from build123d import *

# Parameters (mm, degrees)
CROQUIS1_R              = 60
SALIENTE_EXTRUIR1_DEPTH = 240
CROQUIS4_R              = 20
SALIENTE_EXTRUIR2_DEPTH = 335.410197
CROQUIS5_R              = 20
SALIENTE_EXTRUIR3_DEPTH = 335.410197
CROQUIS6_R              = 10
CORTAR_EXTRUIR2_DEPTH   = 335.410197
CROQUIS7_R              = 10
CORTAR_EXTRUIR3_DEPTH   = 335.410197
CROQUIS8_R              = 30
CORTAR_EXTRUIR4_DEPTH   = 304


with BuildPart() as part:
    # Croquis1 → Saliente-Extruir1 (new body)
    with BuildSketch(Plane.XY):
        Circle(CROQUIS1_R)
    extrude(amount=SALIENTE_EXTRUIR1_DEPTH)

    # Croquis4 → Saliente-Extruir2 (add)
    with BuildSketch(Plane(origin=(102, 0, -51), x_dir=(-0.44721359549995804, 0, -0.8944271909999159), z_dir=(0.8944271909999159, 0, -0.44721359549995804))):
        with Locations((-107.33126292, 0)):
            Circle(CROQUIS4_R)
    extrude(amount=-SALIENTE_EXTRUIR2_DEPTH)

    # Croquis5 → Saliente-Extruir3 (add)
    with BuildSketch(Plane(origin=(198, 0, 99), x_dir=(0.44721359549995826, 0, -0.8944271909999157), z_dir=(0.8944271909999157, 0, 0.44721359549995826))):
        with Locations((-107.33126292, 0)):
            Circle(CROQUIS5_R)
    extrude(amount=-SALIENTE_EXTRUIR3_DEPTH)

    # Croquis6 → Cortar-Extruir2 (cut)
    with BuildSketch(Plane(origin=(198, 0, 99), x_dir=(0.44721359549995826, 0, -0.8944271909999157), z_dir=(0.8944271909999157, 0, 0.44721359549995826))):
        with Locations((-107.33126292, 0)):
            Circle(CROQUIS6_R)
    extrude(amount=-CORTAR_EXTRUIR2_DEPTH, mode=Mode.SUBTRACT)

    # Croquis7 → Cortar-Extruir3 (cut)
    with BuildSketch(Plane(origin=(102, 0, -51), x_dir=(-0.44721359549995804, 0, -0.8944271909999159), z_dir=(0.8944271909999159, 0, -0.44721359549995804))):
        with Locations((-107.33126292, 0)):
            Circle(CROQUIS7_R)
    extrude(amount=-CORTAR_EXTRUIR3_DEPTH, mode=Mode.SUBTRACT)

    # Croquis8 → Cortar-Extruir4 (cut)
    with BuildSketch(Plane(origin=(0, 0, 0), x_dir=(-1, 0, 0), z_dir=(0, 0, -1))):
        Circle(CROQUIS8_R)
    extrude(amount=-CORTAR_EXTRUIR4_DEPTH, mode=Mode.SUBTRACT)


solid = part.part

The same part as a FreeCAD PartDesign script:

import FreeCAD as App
import Part
import Sketcher
Q = App.Units.Quantity

doc = App.newDocument("Part")
body = doc.addObject("PartDesign::Body", "Body")

# Sketch on XY plane
sketch1 = body.newObject("Sketcher::SketchObject", "Sketch")
sketch1.AttachmentSupport = (doc.getObject("XY_Plane"), [""])
sketch1.MapMode = "FlatFace"
sketch1.addGeometry(Part.Circle(App.Vector(0, 0, 0), App.Vector(0, 0, 1), 60), False)
sketch1.addConstraint(Sketcher.Constraint("Coincident", 0, 3, -1, 1))
sketch1.addConstraint(Sketcher.Constraint("Diameter", 0, Q("120 mm")))
pad1 = body.newObject("PartDesign::Pad", "Pad")
pad1.Profile = sketch1
pad1.Length = 240

# Sketch on an angled plane
sketch2 = body.newObject("Sketcher::SketchObject", "Sketch001")
sketch2.Placement = App.Placement(App.Vector(102, 0, -51), App.Rotation(App.Vector(-0.447213595, 0, -0.894427191), App.Vector(0, 1, 0), App.Vector(0.894427191, 0, -0.447213595), "ZXY"))
sketch2.addGeometry(Part.Circle(App.Vector(-107, 0, 0), App.Vector(0, 0, 1), 20), False)
sketch2.addConstraint(Sketcher.Constraint("PointOnObject", 0, 3, -1))
sketch2.addConstraint(Sketcher.Constraint("Diameter", 0, Q("40 mm")))
sketch2.addConstraint(Sketcher.Constraint("DistanceX", 0, 3, -1, 1, Q("107.331263 mm")))
pad2 = body.newObject("PartDesign::Pad", "Pad001")
pad2.Profile = sketch2
pad2.Length = 335.410197
pad2.Reversed = True

# Sketch on an angled plane
sketch3 = body.newObject("Sketcher::SketchObject", "Sketch002")
sketch3.Placement = App.Placement(App.Vector(198, 0, 99), App.Rotation(App.Vector(0.447213595, 0, -0.894427191), App.Vector(0, 1, 0), App.Vector(0.894427191, 0, 0.447213595), "ZXY"))
sketch3.addGeometry(Part.Circle(App.Vector(-107, 0, 0), App.Vector(0, 0, 1), 20), False)
sketch3.addConstraint(Sketcher.Constraint("PointOnObject", 0, 3, -1))
sketch3.addConstraint(Sketcher.Constraint("Diameter", 0, Q("40 mm")))
sketch3.addConstraint(Sketcher.Constraint("DistanceX", 0, 3, -1, 1, Q("107.331263 mm")))
pad3 = body.newObject("PartDesign::Pad", "Pad002")
pad3.Profile = sketch3
pad3.Length = 335.410197
pad3.Reversed = True

# Sketch on an angled plane
sketch4 = body.newObject("Sketcher::SketchObject", "Sketch003")
sketch4.Placement = App.Placement(App.Vector(198, 0, 99), App.Rotation(App.Vector(0.447213595, 0, -0.894427191), App.Vector(0, 1, 0), App.Vector(0.894427191, 0, 0.447213595), "ZXY"))
sketch4.addGeometry(Part.Circle(App.Vector(-107, 0, 0), App.Vector(0, 0, 1), 10), False)
sketch4.addConstraint(Sketcher.Constraint("PointOnObject", 0, 3, -1))
sketch4.addConstraint(Sketcher.Constraint("Diameter", 0, Q("20 mm")))
sketch4.addConstraint(Sketcher.Constraint("DistanceX", 0, 3, -1, 1, Q("107.331263 mm")))
pocket1 = body.newObject("PartDesign::Pocket", "Pocket")
pocket1.Profile = sketch4
pocket1.Length = 335.410197

# Sketch on an angled plane
sketch5 = body.newObject("Sketcher::SketchObject", "Sketch004")
sketch5.Placement = App.Placement(App.Vector(102, 0, -51), App.Rotation(App.Vector(-0.447213595, 0, -0.894427191), App.Vector(0, 1, 0), App.Vector(0.894427191, 0, -0.447213595), "ZXY"))
sketch5.addGeometry(Part.Circle(App.Vector(-107, 0, 0), App.Vector(0, 0, 1), 10), False)
sketch5.addConstraint(Sketcher.Constraint("PointOnObject", 0, 3, -1))
sketch5.addConstraint(Sketcher.Constraint("Diameter", 0, Q("20 mm")))
sketch5.addConstraint(Sketcher.Constraint("DistanceX", 0, 3, -1, 1, Q("107.331263 mm")))
pocket2 = body.newObject("PartDesign::Pocket", "Pocket001")
pocket2.Profile = sketch5
pocket2.Length = 335.410197

# Sketch on XY plane
sketch6 = body.newObject("Sketcher::SketchObject", "Sketch005")
sketch6.AttachmentSupport = (doc.getObject("XY_Plane"), [""])
sketch6.MapMode = "FlatFace"
sketch6.addGeometry(Part.Circle(App.Vector(0, 0, 0), App.Vector(0, 0, 1), 30), False)
sketch6.addConstraint(Sketcher.Constraint("Coincident", 0, 3, -1, 1))
sketch6.addConstraint(Sketcher.Constraint("Diameter", 0, Q("60 mm")))
pocket3 = body.newObject("PartDesign::Pocket", "Pocket002")
pocket3.Profile = sketch6
pocket3.Length = 304
pocket3.Reversed = True

doc.recompute()
